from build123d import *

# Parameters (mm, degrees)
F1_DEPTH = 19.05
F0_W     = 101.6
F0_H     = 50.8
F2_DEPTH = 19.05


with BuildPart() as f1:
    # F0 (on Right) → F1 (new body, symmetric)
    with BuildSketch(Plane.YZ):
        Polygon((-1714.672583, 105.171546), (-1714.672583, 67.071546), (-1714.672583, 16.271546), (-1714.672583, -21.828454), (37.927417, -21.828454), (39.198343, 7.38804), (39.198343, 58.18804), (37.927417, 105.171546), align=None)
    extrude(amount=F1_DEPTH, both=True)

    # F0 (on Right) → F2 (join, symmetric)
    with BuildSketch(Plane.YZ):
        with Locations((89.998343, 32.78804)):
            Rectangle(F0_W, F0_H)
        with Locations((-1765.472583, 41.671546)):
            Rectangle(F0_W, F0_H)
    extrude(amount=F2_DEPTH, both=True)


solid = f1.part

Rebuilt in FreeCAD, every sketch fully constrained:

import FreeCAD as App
import Part
import Sketcher

V = App.Vector
Q = App.Units.Quantity

doc = App.newDocument("Part")
params = doc.addObject("Spreadsheet::Sheet", "Params")
for row, (alias, value) in enumerate([
    ("sketch1_width", "69 in"),
    ("sketch1_height", "5 in"),
    ("sketch1_height2", "2 in"),
    ("pad1_length", "1.5 in"),
    ("sketch2_width", "4 in"),
    ("sketch2_height", "2 in"),
    ("pad2_length", "1.5 in"),
], start=1):
    params.set(f"A{row}", alias)
    params.set(f"B{row}", "=" + value)
    params.setAlias(f"B{row}", alias)

body = doc.addObject("PartDesign::Body", "Body")

sketch1 = body.newObject("Sketcher::SketchObject", "Sketch")
sketch1.AttachmentSupport = (doc.getObject("YZ_Plane"), [""])
sketch1.MapMode = "FlatFace"
sketch1.addGeometry(Part.LineSegment(V(-1715, 105, 0), V(-1715, -22, 0)), False)
sketch1.addGeometry(Part.LineSegment(V(-1715, -22, 0), V(38, -22, 0)), False)
sketch1.addGeometry(Part.LineSegment(V(38, -22, 0), V(39, 7, 0)), False)
sketch1.addGeometry(Part.LineSegment(V(39, 7, 0), V(39, 58, 0)), False)
sketch1.addGeometry(Part.LineSegment(V(39, 58, 0), V(38, 105, 0)), False)
sketch1.addGeometry(Part.LineSegment(V(38, 105, 0), V(-1715, 105, 0)), False)
sketch1.addConstraint(Sketcher.Constraint("Coincident", 0, 2, 1, 1))
sketch1.addConstraint(Sketcher.Constraint("Coincident", 1, 2, 2, 1))
sketch1.addConstraint(Sketcher.Constraint("Coincident", 2, 2, 3, 1))
sketch1.addConstraint(Sketcher.Constraint("Coincident", 3, 2, 4, 1))
sketch1.addConstraint(Sketcher.Constraint("Coincident", 4, 2, 5, 1))
sketch1.addConstraint(Sketcher.Constraint("Coincident", 5, 2, 0, 1))
sketch1.addConstraint(Sketcher.Constraint("Vertical", 0))
sketch1.addConstraint(Sketcher.Constraint("Horizontal", 1))
sketch1.addConstraint(Sketcher.Constraint("Vertical", 3))
sketch1.addConstraint(Sketcher.Constraint("Horizontal", 5))
sketch1.addConstraint(Sketcher.Constraint("Vertical", 1, 2, 4, 2))
sketch1.addConstraint(Sketcher.Constraint("DistanceX", 1, 1, 1, 2, Q("69 in")))
sketch1.addConstraint(Sketcher.Constraint("DistanceY", 0, 2, 0, 1, Q("5 in")))
sketch1.addConstraint(Sketcher.Constraint("DistanceY", 3, 1, 3, 2, Q("2 in")))
sketch1.addConstraint(Sketcher.Constraint("DistanceY", -1, 1, 2, 2, Q("7.38804 mm")))
sketch1.addConstraint(Sketcher.Constraint("Distance", 2, Q("29.244124 mm")))
sketch1.addConstraint(Sketcher.Constraint("Distance", 4, Q("47.000692 mm")))
sketch1.addConstraint(Sketcher.Constraint("DistanceX", 0, 2, -1, 1, Q("1714.672583 mm")))
sketch1.setExpression("Constraints[11]", "Params.sketch1_width")
sketch1.setExpression("Constraints[12]", "Params.sketch1_height")
sketch1.setExpression("Constraints[13]", "Params.sketch1_height2")
pad1 = body.newObject("PartDesign::Pad", "Pad")
pad1.Profile = sketch1
pad1.setExpression("Length", "Params.pad1_length")
pad1.Midplane = True

sketch2 = body.newObject("Sketcher::SketchObject", "Sketch001")
sketch2.AttachmentSupport = (doc.getObject("YZ_Plane"), [""])
sketch2.MapMode = "FlatFace"
sketch2.addGeometry(Part.LineSegment(V(39, 58, 0), V(39, 7, 0)), False)
sketch2.addGeometry(Part.LineSegment(V(39, 7, 0), V(141, 7, 0)), False)
sketch2.addGeometry(Part.LineSegment(V(141, 7, 0), V(141, 58, 0)), False)
sketch2.addGeometry(Part.LineSegment(V(141, 58, 0), V(39, 58, 0)), False)
sketch2.addGeometry(Part.LineSegment(V(-1816, 67, 0), V(-1816, 16, 0)), False)
sketch2.addGeometry(Part.LineSegment(V(-1816, 16, 0), V(-1715, 16, 0)), False)
sketch2.addGeometry(Part.LineSegment(V(-1715, 16, 0), V(-1715, 67, 0)), False)
sketch2.addGeometry(Part.LineSegment(V(-1715, 67, 0), V(-1816, 67, 0)), False)
sketch2.addConstraint(Sketcher.Constraint("Coincident", 0, 2, 1, 1))
sketch2.addConstraint(Sketcher.Constraint("Coincident", 1, 2, 2, 1))
sketch2.addConstraint(Sketcher.Constraint("Coincident", 2, 2, 3, 1))
sketch2.addConstraint(Sketcher.Constraint("Coincident", 3, 2, 0, 1))
sketch2.addConstraint(Sketcher.Constraint("Coincident", 4, 2, 5, 1))
sketch2.addConstraint(Sketcher.Constraint("Coincident", 5, 2, 6, 1))
sketch2.addConstraint(Sketcher.Constraint("Coincident", 6, 2, 7, 1))
sketch2.addConstraint(Sketcher.Constraint("Coincident", 7, 2, 4, 1))
sketch2.addConstraint(Sketcher.Constraint("Vertical", 0))
sketch2.addConstraint(Sketcher.Constraint("Horizontal", 1))
sketch2.addConstraint(Sketcher.Constraint("Vertical", 2))
sketch2.addConstraint(Sketcher.Constraint("Horizontal", 3))
sketch2.addConstraint(Sketcher.Constraint("Vertical", 4))
sketch2.addConstraint(Sketcher.Constraint("Horizontal", 5))
sketch2.addConstraint(Sketcher.Constraint("Vertical", 6))
sketch2.addConstraint(Sketcher.Constraint("Horizontal", 7))
sketch2.addConstraint(Sketcher.Constraint("Equal", 3, 5))
sketch2.addConstraint(Sketcher.Constraint("Equal", 2, 4))
sketch2.addConstraint(Sketcher.Constraint("DistanceX", 1, 1, 1, 2, Q("4 in")))
sketch2.addConstraint(Sketcher.Constraint("DistanceY", 0, 2, 0, 1, Q("2 in")))
sketch2.addConstraint(Sketcher.Constraint("DistanceY", -1, 1, 0, 2, Q("7.38804 mm")))
sketch2.addConstraint(Sketcher.Constraint("DistanceX", -1, 1, 0, 2, Q("39.198343 mm")))
sketch2.addConstraint(Sketcher.Constraint("DistanceX", 4, 2, -1, 1, Q("1816.272583 mm")))
sketch2.addConstraint(Sketcher.Constraint("DistanceY", -1, 1, 4, 2, Q("16.271546 mm")))
sketch2.setExpression("Constraints[18]", "Params.sketch2_width")
sketch2.setExpression("Constraints[19]", "Params.sketch2_height")
pad2 = body.newObject("PartDesign::Pad", "Pad001")
pad2.Profile = sketch2
pad2.setExpression("Length", "Params.pad2_length")
pad2.Midplane = True

doc.recompute()
